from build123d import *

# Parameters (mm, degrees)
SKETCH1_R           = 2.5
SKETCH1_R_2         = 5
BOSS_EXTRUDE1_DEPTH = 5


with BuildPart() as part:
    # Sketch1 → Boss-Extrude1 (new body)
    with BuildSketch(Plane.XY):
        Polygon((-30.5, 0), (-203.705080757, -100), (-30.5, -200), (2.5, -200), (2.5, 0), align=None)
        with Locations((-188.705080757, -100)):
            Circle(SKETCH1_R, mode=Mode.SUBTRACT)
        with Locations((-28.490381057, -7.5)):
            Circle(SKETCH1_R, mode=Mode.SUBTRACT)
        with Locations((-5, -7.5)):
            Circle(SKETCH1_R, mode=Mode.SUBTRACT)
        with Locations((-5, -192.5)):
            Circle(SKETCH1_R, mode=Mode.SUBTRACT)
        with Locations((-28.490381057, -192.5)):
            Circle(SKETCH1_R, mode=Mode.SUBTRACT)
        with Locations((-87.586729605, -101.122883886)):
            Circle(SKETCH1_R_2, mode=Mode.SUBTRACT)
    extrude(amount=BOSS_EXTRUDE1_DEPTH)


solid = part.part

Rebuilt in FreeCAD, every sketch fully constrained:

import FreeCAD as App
import Part
import Sketcher
Q = App.Units.Quantity


def add_polygon(sketch, points):
    """Adds a closed chain of lines whose ends are joined by coincident constraints."""
    first, n = sketch.GeometryCount, len(points)
    for a, b in zip(points, points[1:] + points[:1]):
        sketch.addGeometry(Part.LineSegment(App.Vector(*a, 0), App.Vector(*b, 0)), False)
    for i in range(n):
        sketch.addConstraint(Sketcher.Constraint("Coincident", first + i, 2, first + (i + 1) % n, 1))

doc = App.newDocument("Part")
body = doc.addObject("PartDesign::Body", "Body")

# Sketch on XY plane
sketch1 = doc.addObject("Sketcher::SketchObject", "Sketch")
body.addObject(sketch1)
sketch1.AttachmentSupport = (doc.XY_Plane, [""])
sketch1.MapMode = "FlatFace"
add_polygon(sketch1, [(-30.5, 0), (-203.7, -100), (-30.5, -200), (2.5, -200), (2.5, 0)])  # lines 0-4
sketch1.addGeometry(Part.Circle(App.Vector(-28.5, -192.5, 0), App.Vector(0, 0, 1), 2.5), False)  # 5
sketch1.addGeometry(Part.Circle(App.Vector(-5, -192.5, 0), App.Vector(0, 0, 1), 2.5), False)  # 6
sketch1.addGeometry(Part.Circle(App.Vector(-87.6, -101.1, 0), App.Vector(0, 0, 1), 5), False)  # 7
sketch1.addGeometry(Part.Circle(App.Vector(-188.7, -100, 0), App.Vector(0, 0, 1), 2.5), False)  # 8
sketch1.addGeometry(Part.Circle(App.Vector(-28.5, -7.5, 0), App.Vector(0, 0, 1), 2.5), False)  # 9
sketch1.addGeometry(Part.Circle(App.Vector(-5, -7.5, 0), App.Vector(0, 0, 1), 2.5), False)  # 10
sketch1.addConstraint([
    Sketcher.Constraint("Horizontal", 2),
    Sketcher.Constraint("Vertical", 3),
    Sketcher.Constraint("Horizontal", 4),
    Sketcher.Constraint("Equal", 5, 6),
    Sketcher.Constraint("Equal", 6, 8),
    Sketcher.Constraint("Equal", 8, 9),
    Sketcher.Constraint("Equal", 9, 10),
    Sketcher.Constraint("PointOnObject", 3, 2, -1),
    Sketcher.Constraint("Horizontal", 5, 3, 6, 3),
    Sketcher.Constraint("Horizontal", 9, 3, 10, 3),
    Sketcher.Constraint("Horizontal", 8, 3, 0, 2),
    Sketcher.Constraint("Vertical", 5, 3, 9, 3),
    Sketcher.Constraint("Vertical", 6, 3, 10, 3),
    Sketcher.Constraint("Vertical", 1, 2, 4, 2),
    Sketcher.Constraint("Equal", 0, 1),
    Sketcher.Constraint("Diameter", 5, Q("5 mm")),
    Sketcher.Constraint("Diameter", 7, Q("10 mm")),
    Sketcher.Constraint("DistanceX", 2, 1, 2, 2, Q("33 mm")),
    Sketcher.Constraint("DistanceY", 3, 1, 3, 2, Q("200 mm")),
    Sketcher.Constraint("Angle", 0, Q("-150 deg")),
    Sketcher.Constraint("DistanceX", 6, 3, -1, 1, Q("5 mm")),
    Sketcher.Constraint("DistanceY", 5, 3, 9, 3, Q("185 mm")),
    Sketcher.Constraint("DistanceX", 0, 2, 8, 3, Q("15 mm")),
    Sketcher.Constraint("DistanceY", 5, 3, -1, 1, Q("192.5 mm")),
    Sketcher.Constraint("DistanceX", 1, 2, -1, 1, Q("30.5 mm")),
    Sketcher.Constraint("DistanceX", 8, 3, 5, 3, Q("160.2147 mm")),
    Sketcher.Constraint("DistanceX", 7, 3, -1, 1, Q("87.58673 mm")),
    Sketcher.Constraint("DistanceY", 7, 3, -1, 1, Q("101.122884 mm")),
])
pad1 = doc.addObject("PartDesign::Pad", "Pad")
body.addObject(pad1)
pad1.Profile = sketch1
pad1.Length = 5

doc.recompute()
